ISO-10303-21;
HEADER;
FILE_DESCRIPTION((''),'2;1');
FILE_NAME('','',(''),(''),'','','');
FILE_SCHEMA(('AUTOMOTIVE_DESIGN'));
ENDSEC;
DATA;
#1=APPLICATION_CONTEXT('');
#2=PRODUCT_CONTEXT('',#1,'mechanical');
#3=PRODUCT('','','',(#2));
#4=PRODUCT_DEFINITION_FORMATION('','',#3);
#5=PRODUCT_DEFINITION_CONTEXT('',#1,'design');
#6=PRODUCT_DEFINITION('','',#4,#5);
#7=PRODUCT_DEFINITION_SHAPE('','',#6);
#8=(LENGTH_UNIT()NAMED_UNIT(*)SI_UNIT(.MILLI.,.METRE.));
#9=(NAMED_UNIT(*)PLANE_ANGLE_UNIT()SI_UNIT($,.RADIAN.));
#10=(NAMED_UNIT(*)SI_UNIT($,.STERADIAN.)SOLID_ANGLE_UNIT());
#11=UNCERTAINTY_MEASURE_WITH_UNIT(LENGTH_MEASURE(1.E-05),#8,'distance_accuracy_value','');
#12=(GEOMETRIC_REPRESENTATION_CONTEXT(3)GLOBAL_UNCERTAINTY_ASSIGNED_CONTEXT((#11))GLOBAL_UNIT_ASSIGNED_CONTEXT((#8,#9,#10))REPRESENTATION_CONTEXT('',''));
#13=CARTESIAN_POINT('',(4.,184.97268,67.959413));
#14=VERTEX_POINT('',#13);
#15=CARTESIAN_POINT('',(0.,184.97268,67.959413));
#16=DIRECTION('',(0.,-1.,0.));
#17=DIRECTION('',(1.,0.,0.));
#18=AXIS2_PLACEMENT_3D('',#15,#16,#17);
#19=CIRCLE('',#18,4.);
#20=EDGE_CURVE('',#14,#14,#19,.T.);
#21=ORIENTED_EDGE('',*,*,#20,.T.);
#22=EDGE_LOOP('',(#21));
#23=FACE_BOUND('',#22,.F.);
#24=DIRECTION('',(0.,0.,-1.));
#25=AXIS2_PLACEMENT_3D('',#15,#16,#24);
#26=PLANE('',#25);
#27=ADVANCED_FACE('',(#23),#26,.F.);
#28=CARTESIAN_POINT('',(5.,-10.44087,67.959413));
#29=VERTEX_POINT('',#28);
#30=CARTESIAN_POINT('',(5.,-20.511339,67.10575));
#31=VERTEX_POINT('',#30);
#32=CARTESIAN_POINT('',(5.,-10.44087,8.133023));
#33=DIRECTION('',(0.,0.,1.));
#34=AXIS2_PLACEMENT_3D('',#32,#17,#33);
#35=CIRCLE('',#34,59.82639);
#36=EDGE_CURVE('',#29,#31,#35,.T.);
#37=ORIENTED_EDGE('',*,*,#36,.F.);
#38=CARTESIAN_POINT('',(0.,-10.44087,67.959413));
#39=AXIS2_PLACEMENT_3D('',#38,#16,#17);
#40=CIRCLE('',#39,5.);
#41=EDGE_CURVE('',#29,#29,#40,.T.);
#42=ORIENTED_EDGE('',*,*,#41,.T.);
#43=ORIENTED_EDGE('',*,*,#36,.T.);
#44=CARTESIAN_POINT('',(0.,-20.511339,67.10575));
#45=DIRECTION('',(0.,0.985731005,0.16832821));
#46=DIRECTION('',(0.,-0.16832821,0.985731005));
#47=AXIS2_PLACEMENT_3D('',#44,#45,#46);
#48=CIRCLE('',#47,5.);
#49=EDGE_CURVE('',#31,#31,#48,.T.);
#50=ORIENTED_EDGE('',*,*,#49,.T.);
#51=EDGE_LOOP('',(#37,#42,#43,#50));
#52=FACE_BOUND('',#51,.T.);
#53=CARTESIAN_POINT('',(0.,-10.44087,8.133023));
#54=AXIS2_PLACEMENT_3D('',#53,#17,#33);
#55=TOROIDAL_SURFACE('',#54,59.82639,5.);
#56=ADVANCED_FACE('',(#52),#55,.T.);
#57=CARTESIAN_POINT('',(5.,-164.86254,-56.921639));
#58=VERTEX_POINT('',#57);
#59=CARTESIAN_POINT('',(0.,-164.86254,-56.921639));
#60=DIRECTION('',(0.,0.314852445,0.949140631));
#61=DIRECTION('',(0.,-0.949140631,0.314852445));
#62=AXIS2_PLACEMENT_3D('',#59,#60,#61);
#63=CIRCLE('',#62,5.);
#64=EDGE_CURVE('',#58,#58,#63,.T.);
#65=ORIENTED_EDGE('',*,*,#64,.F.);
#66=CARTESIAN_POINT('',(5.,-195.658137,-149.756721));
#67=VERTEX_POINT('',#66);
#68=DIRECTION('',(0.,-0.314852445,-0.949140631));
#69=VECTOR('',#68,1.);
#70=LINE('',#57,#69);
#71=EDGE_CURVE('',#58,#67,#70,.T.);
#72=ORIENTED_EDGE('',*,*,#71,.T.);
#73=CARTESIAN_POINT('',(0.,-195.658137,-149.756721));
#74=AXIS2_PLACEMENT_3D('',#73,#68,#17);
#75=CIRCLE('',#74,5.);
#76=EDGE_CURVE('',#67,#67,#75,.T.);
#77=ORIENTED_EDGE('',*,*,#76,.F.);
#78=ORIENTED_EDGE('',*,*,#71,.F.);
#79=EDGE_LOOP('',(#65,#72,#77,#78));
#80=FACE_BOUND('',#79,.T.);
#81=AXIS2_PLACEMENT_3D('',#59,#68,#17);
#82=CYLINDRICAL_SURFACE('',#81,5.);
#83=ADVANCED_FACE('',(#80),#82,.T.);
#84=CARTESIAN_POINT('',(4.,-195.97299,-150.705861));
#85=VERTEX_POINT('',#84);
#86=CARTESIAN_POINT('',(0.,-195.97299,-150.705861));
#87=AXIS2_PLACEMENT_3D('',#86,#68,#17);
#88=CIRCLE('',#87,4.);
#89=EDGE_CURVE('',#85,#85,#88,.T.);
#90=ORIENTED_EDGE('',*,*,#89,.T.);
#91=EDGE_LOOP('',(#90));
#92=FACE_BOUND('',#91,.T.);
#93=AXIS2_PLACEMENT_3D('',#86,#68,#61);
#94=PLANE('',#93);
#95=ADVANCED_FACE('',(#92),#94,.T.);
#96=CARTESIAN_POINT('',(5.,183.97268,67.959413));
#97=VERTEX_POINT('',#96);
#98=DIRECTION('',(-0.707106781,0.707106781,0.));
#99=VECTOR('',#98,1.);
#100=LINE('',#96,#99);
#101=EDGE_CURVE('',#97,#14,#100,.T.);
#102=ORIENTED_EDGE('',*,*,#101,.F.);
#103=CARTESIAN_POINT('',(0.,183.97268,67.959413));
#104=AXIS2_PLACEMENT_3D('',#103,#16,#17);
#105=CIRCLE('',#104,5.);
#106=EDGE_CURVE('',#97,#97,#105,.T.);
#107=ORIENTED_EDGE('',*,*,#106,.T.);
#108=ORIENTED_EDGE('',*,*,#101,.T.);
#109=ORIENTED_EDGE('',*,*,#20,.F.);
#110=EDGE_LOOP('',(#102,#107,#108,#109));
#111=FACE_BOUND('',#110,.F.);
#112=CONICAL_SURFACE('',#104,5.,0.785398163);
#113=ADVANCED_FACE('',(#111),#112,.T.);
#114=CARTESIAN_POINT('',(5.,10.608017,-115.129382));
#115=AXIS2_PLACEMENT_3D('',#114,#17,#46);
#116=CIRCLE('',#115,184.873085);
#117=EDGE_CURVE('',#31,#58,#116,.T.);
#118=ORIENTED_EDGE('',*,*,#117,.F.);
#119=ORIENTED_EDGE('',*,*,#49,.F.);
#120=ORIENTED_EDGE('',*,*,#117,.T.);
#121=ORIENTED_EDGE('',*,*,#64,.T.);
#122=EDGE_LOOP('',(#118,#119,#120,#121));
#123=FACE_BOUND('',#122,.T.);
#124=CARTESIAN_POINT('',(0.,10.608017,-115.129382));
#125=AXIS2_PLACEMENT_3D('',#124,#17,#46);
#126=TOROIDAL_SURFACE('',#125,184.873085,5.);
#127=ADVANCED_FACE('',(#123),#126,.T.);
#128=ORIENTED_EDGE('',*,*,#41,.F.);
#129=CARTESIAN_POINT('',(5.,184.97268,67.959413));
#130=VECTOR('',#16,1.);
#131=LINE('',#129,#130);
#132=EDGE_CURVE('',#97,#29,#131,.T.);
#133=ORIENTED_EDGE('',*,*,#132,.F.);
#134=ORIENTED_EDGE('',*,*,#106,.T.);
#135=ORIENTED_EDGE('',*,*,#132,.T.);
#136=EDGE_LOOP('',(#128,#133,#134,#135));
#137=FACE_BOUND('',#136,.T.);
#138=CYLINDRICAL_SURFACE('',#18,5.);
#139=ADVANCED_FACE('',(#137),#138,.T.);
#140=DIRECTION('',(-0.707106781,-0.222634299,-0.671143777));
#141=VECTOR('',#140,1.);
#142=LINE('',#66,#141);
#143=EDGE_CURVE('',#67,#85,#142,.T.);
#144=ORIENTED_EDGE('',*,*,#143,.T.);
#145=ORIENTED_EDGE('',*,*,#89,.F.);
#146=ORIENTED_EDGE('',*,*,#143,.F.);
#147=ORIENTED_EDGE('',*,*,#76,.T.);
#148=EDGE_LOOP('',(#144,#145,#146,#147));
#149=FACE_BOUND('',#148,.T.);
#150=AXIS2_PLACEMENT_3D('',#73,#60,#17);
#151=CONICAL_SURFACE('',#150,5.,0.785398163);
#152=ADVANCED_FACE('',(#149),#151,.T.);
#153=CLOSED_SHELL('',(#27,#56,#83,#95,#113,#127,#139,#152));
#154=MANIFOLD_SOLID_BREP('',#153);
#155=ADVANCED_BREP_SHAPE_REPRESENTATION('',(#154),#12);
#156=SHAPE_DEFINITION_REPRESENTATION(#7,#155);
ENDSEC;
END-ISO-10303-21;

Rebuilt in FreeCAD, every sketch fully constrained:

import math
import FreeCAD as App
import Part
import Sketcher
from FreeCAD import Vector


def edges_at(feature, points):
    """Names of the edges that pass closest to the given points."""
    edges = feature.Shape.Edges
    near = lambda p: min(range(len(edges)), key=lambda i: edges[i].distToShape(Part.Vertex(*p))[0])
    return sorted({f"Edge{near(p) + 1}" for p in points})

doc = App.newDocument("Part")
body = doc.addObject("PartDesign::Body", "Body")

# Sketch on XZ plane
sketch1 = doc.addObject("Sketcher::SketchObject", "Sketch")
body.addObject(sketch1)
sketch1.AttachmentSupport = (doc.XZ_Plane, [""])
sketch1.MapMode = "FlatFace"
sketch1.AttachmentOffset = App.Placement(Vector(0, 0, -184.97268), App.Rotation())
sketch1.addGeometry(Part.Circle(Vector(0, 67.959413, 0), Vector(0, 0, 1), 5), False)
sketch1.addConstraint(Sketcher.Constraint("PointOnObject", 0, 3, -2))
sketch1.addConstraint(Sketcher.Constraint("Diameter", 0, 10.0))
sketch1.addConstraint(Sketcher.Constraint("DistanceY", -1, 1, 0, 3, 67.959413))

# Sketch on YZ plane
sketch2 = doc.addObject("Sketcher::SketchObject", "Sketch001")
body.addObject(sketch2)
sketch2.AttachmentSupport = (doc.YZ_Plane, [""])
sketch2.MapMode = "FlatFace"
sketch2.addGeometry(Part.LineSegment(Vector(184.97268, 68.133023, 0), Vector(-10.44087, 68.133023, 0)), False)
sketch2.addGeometry(Part.ArcOfCircle(Part.Circle(Vector(-10.44087, 8.133023, 0), Vector(0, 0, 1), 60), math.radians(90), math.radians(99.690632)), False)
sketch2.addGeometry(Part.ArcOfCircle(Part.Circle(Vector(10.608017, -115.129382, 0), Vector(0, 0, 1), 185.046695), math.radians(99.690632), math.radians(161.648094)), False)
sketch2.addGeometry(Part.LineSegment(Vector(-165.02732, -56.866977, 0), Vector(-196.13777, -150.6512, 0)), False)
sketch2.addConstraint(Sketcher.Constraint("Tangent", 0, 2, 1, 1))
sketch2.addConstraint(Sketcher.Constraint("Tangent", 1, 2, 2, 1))
sketch2.addConstraint(Sketcher.Constraint("Tangent", 2, 2, 3, 1))
sketch2.addConstraint(Sketcher.Constraint("Horizontal", 0))
sketch2.addConstraint(Sketcher.Constraint("Radius", 1, 60.0))
sketch2.addConstraint(Sketcher.Constraint("DistanceY", 2, 2, 1, 3, 65.0))
sketch2.addConstraint(Sketcher.Constraint("DistanceX", 2, 2, 0, 1, 350.0))
sketch2.addConstraint(Sketcher.Constraint("Radius", 2, 185.046695))
sketch2.addConstraint(Sketcher.Constraint("DistanceX", 0, 2, 0, 1, 195.413549))
sketch2.addConstraint(Sketcher.Constraint("DistanceY", 3, 2, -1, 1, 150.6512))
sketch2.addConstraint(Sketcher.Constraint("DistanceX", 3, 2, 1, 3, 185.6969))
sketch2.addConstraint(Sketcher.Constraint("DistanceX", 1, 3, -1, 1, 10.44087))
doc.recompute()

additivepipe = doc.addObject("PartDesign::AdditivePipe", "AdditivePipe")
body.addObject(additivepipe)
additivepipe.Profile = sketch1
additivepipe.Spine = (sketch2, ["Edge1", "Edge2", "Edge3", "Edge4"])
doc.recompute()

chamfer = doc.addObject("PartDesign::Chamfer", "Chamfer")
body.addObject(chamfer)
chamfer.Base = (additivepipe, edges_at(additivepipe, [(-5, 184.973, 67.959), (-5, -195.973, -150.706)]))
chamfer.Size = 1

doc.recompute()
